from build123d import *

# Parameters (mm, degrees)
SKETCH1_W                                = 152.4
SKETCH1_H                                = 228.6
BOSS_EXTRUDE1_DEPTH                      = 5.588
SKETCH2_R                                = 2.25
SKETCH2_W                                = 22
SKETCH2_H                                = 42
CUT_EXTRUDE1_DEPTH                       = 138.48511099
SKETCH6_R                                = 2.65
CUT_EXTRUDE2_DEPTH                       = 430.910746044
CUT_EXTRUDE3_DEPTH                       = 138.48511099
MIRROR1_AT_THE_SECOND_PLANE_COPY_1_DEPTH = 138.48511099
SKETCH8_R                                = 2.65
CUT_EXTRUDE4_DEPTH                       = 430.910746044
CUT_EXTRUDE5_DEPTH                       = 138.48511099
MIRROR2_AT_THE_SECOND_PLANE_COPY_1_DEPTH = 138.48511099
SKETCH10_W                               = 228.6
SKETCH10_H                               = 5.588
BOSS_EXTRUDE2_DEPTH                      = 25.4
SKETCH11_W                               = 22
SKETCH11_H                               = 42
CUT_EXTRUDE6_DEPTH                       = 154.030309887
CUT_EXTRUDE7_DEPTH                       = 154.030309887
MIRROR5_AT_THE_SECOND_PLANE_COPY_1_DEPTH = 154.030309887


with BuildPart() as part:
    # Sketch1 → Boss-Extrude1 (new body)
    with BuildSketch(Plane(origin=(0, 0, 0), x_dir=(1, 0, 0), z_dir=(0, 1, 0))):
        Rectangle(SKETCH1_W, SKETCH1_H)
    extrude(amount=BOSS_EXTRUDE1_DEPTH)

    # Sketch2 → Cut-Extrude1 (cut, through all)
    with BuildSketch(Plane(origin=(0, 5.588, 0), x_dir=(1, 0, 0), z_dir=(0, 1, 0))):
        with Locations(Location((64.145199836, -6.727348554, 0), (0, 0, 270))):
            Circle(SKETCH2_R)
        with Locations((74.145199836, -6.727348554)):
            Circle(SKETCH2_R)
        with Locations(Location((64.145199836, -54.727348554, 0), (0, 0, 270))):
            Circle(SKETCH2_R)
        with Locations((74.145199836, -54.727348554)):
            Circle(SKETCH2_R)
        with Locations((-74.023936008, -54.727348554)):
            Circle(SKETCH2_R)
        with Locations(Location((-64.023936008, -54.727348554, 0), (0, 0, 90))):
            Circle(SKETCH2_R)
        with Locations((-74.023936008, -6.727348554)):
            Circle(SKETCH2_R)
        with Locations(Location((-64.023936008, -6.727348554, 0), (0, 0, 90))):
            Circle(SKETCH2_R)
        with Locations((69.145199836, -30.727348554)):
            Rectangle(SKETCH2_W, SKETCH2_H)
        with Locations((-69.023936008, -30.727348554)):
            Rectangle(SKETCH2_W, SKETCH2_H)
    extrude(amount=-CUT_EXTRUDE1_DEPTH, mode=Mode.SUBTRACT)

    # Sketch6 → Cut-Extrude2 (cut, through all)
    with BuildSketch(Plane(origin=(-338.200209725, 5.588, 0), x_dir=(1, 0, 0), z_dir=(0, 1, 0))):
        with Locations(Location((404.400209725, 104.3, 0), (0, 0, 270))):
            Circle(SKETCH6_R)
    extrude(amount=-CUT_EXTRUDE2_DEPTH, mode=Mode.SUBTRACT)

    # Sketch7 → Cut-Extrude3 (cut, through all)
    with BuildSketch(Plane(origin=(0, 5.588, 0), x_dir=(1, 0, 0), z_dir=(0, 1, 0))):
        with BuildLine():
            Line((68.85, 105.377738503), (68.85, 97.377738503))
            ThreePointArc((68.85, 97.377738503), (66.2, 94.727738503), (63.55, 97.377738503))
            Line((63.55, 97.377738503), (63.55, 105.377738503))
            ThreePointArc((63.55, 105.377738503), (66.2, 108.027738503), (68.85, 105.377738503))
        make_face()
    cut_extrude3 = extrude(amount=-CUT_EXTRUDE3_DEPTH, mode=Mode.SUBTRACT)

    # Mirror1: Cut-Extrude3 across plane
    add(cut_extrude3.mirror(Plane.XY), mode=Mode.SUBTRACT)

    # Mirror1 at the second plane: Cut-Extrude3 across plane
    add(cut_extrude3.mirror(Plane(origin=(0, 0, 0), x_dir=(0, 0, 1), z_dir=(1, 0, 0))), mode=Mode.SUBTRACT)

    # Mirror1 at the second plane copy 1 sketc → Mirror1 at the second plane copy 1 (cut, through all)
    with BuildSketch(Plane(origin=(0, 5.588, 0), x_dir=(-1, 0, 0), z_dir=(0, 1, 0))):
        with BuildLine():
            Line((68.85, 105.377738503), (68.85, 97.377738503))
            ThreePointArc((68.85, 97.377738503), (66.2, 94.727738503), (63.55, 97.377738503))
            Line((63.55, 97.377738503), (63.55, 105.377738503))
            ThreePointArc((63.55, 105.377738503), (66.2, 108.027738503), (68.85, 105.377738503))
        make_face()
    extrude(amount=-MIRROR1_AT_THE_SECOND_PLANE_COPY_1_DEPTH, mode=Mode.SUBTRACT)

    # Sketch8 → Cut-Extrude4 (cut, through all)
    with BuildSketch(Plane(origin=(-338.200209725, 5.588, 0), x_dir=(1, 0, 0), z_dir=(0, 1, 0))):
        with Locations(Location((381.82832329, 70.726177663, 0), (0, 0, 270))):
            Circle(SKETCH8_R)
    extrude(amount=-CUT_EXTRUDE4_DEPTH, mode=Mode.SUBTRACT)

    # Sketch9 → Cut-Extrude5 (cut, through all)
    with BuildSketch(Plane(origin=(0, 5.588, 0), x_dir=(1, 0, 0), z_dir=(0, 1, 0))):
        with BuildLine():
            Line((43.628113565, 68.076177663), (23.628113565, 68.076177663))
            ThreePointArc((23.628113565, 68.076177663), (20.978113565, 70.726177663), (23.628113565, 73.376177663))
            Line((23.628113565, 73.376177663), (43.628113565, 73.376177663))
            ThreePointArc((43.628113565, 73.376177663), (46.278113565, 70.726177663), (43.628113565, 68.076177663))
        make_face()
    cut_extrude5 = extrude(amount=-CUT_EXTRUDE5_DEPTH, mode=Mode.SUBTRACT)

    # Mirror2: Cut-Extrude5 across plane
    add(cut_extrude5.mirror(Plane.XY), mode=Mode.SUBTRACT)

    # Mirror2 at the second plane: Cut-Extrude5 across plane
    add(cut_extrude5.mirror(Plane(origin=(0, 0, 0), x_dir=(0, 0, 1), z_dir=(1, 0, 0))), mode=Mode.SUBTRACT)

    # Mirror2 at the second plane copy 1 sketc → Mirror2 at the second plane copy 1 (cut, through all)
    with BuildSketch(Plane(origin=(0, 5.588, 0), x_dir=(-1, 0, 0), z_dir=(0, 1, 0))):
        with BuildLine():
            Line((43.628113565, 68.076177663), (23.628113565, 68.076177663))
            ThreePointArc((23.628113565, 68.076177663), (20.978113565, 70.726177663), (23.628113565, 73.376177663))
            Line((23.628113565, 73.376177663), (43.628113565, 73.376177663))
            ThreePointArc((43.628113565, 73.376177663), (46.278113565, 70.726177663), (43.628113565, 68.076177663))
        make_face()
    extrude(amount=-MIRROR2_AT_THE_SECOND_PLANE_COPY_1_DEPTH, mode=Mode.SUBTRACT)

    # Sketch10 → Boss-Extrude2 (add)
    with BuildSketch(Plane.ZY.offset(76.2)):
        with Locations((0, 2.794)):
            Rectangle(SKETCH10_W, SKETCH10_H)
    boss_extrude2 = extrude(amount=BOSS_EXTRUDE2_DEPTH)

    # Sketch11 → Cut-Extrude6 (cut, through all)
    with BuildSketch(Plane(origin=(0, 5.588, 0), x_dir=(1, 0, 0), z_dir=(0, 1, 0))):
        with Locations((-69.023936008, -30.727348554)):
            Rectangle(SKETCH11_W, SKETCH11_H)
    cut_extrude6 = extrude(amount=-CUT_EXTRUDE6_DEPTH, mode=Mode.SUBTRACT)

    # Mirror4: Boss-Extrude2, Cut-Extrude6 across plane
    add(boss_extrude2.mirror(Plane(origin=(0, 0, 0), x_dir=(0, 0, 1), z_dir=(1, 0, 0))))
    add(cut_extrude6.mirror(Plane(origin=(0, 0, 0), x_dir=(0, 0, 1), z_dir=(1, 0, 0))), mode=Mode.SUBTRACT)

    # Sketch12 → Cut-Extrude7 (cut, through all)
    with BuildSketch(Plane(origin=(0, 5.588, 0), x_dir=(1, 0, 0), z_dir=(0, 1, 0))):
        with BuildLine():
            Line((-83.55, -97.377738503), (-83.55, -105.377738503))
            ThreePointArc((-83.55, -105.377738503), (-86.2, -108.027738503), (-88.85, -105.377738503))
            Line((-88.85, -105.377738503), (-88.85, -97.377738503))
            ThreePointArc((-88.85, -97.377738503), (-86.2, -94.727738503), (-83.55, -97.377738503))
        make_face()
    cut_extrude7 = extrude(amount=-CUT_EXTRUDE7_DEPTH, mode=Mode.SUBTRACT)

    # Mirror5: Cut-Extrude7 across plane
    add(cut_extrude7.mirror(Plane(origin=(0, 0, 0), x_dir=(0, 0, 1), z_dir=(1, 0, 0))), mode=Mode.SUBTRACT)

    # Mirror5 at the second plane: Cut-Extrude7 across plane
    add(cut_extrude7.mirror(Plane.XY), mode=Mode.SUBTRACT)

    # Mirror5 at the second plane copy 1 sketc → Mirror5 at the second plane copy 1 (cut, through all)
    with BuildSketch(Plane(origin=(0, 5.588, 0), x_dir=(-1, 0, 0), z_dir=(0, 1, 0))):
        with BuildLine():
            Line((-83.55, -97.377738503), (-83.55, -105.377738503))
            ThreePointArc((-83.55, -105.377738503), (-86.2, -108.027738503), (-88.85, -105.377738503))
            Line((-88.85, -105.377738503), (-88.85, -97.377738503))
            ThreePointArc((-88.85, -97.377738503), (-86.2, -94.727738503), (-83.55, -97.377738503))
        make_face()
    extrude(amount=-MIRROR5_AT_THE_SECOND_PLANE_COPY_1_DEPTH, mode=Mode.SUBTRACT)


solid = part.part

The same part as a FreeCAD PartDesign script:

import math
import FreeCAD as App
import Part
import Sketcher

V = App.Vector
Q = App.Units.Quantity


def add_polygon(sketch, points):
    """Adds a closed chain of lines whose ends are joined by coincident constraints."""
    first, n = sketch.GeometryCount, len(points)
    for a, b in zip(points, points[1:] + points[:1]):
        sketch.addGeometry(Part.LineSegment(App.Vector(*a, 0), App.Vector(*b, 0)), False)
    for i in range(n):
        sketch.addConstraint(Sketcher.Constraint("Coincident", first + i, 2, first + (i + 1) % n, 1))

doc = App.newDocument("Part")
params = doc.addObject("Spreadsheet::Sheet", "Params")
for row, (alias, value) in enumerate([
    ("sketch1_width", "152.4 mm"),
    ("sketch1_height", "228.6 mm"),
    ("pad1_length", "5.588 mm"),
    ("sketch2_diameter", "4.5 mm"),
    ("sketch2_width", "22 mm"),
    ("sketch2_height", "42 mm"),
    ("sketch3_diameter", "5.3 mm"),
    ("sketch4_height", "8 mm"),
    ("sketch4_radius", "2.65 mm"),
    ("sketch5_height", "8 mm"),
    ("sketch5_radius", "2.65 mm"),
    ("sketch6_diameter", "5.3 mm"),
    ("sketch7_width", "20 mm"),
    ("sketch7_radius", "2.65 mm"),
    ("sketch8_width", "20 mm"),
    ("sketch8_radius", "2.65 mm"),
    ("sketch9_height", "228.6 mm"),
    ("pad2_length", "25.4 mm"),
    ("sketch10_width", "22 mm"),
    ("sketch10_height", "42 mm"),
    ("sketch11_height", "8 mm"),
    ("sketch11_radius", "2.65 mm"),
    ("sketch12_height", "8 mm"),
    ("sketch12_radius", "2.65 mm"),
], start=1):
    params.set(f"A{row}", alias)
    params.set(f"B{row}", "=" + value)
    params.setAlias(f"B{row}", alias)

body = doc.addObject("PartDesign::Body", "Body")

# Sketch on XZ plane
sketch1 = body.newObject("Sketcher::SketchObject", "Sketch")
sketch1.AttachmentSupport = (doc.getObject("XZ_Plane"), [""])
sketch1.MapMode = "FlatFace"
add_polygon(sketch1, [(-76.2, -114.3), (-76.2, 114.3), (76.2, 114.3), (76.2, -114.3)])  # lines 0-3
sketch1.addConstraint(Sketcher.Constraint("Vertical", 0))
sketch1.addConstraint(Sketcher.Constraint("Horizontal", 1))
sketch1.addConstraint(Sketcher.Constraint("Vertical", 2))
sketch1.addConstraint(Sketcher.Constraint("Horizontal", 3))
sketch1.addConstraint(Sketcher.Constraint("Symmetric", 0, 2, 2, 2, -1, 1))
sketch1.addConstraint(Sketcher.Constraint("DistanceX", 1, 1, 1, 2, Q("152.4 mm")))
sketch1.addConstraint(Sketcher.Constraint("DistanceY", 0, 1, 0, 2, Q("228.6 mm")))
sketch1.setExpression("Constraints[9]", "Params.sketch1_width")
sketch1.setExpression("Constraints[10]", "Params.sketch1_height")
pad1 = body.newObject("PartDesign::Pad", "Pad")
pad1.Profile = sketch1
pad1.setExpression("Length", "Params.pad1_length")
pad1.Reversed = True

# Sketch on XZ plane
sketch2 = body.newObject("Sketcher::SketchObject", "Sketch001")
sketch2.AttachmentSupport = (doc.getObject("XZ_Plane"), [""])
sketch2.MapMode = "FlatFace"
sketch2.AttachmentOffset = App.Placement(V(0, 0, -5.588), App.Rotation())
sketch2.addGeometry(Part.Circle(V(64.1452, 6.727349, 0), V(0, 0, 1), 2.25), False)  # 0
sketch2.addGeometry(Part.Circle(V(74.1452, 6.727349, 0), V(0, 0, 1), 2.25), False)  # 1
sketch2.addGeometry(Part.Circle(V(64.1452, 54.727349, 0), V(0, 0, 1), 2.25), False)  # 2
sketch2.addGeometry(Part.Circle(V(74.1452, 54.727349, 0), V(0, 0, 1), 2.25), False)  # 3
sketch2.addGeometry(Part.Circle(V(-74.023936, 54.727349, 0), V(0, 0, 1), 2.25), False)  # 4
sketch2.addGeometry(Part.Circle(V(-64.023936, 54.727349, 0), V(0, 0, 1), 2.25), False)  # 5
sketch2.addGeometry(Part.Circle(V(-74.023936, 6.727349, 0), V(0, 0, 1), 2.25), False)  # 6
sketch2.addGeometry(Part.Circle(V(-64.023936, 6.727349, 0), V(0, 0, 1), 2.25), False)  # 7
add_polygon(sketch2, [(58.1452, 9.727349), (58.1452, 51.727349), (80.1452, 51.727349), (80.1452, 9.727349)])  # lines 8-11
add_polygon(sketch2, [(-80.023936, 9.727349), (-80.023936, 51.727349), (-58.023936, 51.727349), (-58.023936, 9.727349)])  # lines 12-15
sketch2.addConstraint(Sketcher.Constraint("Vertical", 8))
sketch2.addConstraint(Sketcher.Constraint("Horizontal", 9))
sketch2.addConstraint(Sketcher.Constraint("Vertical", 10))
sketch2.addConstraint(Sketcher.Constraint("Horizontal", 11))
sketch2.addConstraint(Sketcher.Constraint("Vertical", 12))
sketch2.addConstraint(Sketcher.Constraint("Horizontal", 13))
sketch2.addConstraint(Sketcher.Constraint("Vertical", 14))
sketch2.addConstraint(Sketcher.Constraint("Horizontal", 15))
sketch2.addConstraint(Sketcher.Constraint("Equal", 0, 1))
sketch2.addConstraint(Sketcher.Constraint("Equal", 1, 2))
sketch2.addConstraint(Sketcher.Constraint("Equal", 2, 3))
sketch2.addConstraint(Sketcher.Constraint("Equal", 3, 4))
sketch2.addConstraint(Sketcher.Constraint("Equal", 4, 5))
sketch2.addConstraint(Sketcher.Constraint("Equal", 5, 6))
sketch2.addConstraint(Sketcher.Constraint("Equal", 6, 7))
sketch2.addConstraint(Sketcher.Constraint("Horizontal", 0, 3, 1, 3))
sketch2.addConstraint(Sketcher.Constraint("Horizontal", 2, 3, 3, 3))
sketch2.addConstraint(Sketcher.Constraint("Horizontal", 3, 3, 4, 3))
sketch2.addConstraint(Sketcher.Constraint("Horizontal", 4, 3, 5, 3))
sketch2.addConstraint(Sketcher.Constraint("Horizontal", 1, 3, 6, 3))
sketch2.addConstraint(Sketcher.Constraint("Horizontal", 6, 3, 7, 3))
sketch2.addConstraint(Sketcher.Constraint("Horizontal", 9, 2, 12, 2))
sketch2.addConstraint(Sketcher.Constraint("Horizontal", 11, 2, 14, 2))
sketch2.addConstraint(Sketcher.Constraint("Vertical", 0, 3, 2, 3))
sketch2.addConstraint(Sketcher.Constraint("Vertical", 1, 3, 3, 3))
sketch2.addConstraint(Sketcher.Constraint("Vertical", 4, 3, 6, 3))
sketch2.addConstraint(Sketcher.Constraint("Vertical", 5, 3, 7, 3))
sketch2.addConstraint(Sketcher.Constraint("Equal", 11, 13))
sketch2.addConstraint(Sketcher.Constraint("Diameter", 0, Q("4.5 mm")))
sketch2.addConstraint(Sketcher.Constraint("DistanceX", 9, 1, 9, 2, Q("22 mm")))
sketch2.addConstraint(Sketcher.Constraint("DistanceY", 8, 1, 8, 2, Q("42 mm")))
sketch2.addConstraint(Sketcher.Constraint("DistanceX", 0, 3, 1, 3, Q("10 mm")))
sketch2.addConstraint(Sketcher.Constraint("DistanceY", 0, 3, 2, 3, Q("48 mm")))
sketch2.addConstraint(Sketcher.Constraint("DistanceX", 4, 3, 5, 3, Q("10 mm")))
sketch2.addConstraint(Sketcher.Constraint("DistanceX", 8, 2, 2, 3, Q("6 mm")))
sketch2.addConstraint(Sketcher.Constraint("DistanceY", 8, 2, 2, 3, Q("3 mm")))
sketch2.addConstraint(Sketcher.Constraint("DistanceX", 12, 2, 4, 3, Q("6 mm")))
sketch2.addConstraint(Sketcher.Constraint("DistanceX", -1, 1, 0, 3, Q("64.1452 mm")))
sketch2.addConstraint(Sketcher.Constraint("DistanceY", -1, 1, 0, 3, Q("6.727349 mm")))
sketch2.addConstraint(Sketcher.Constraint("DistanceX", 4, 3, -1, 1, Q("74.023936 mm")))
sketch2.setExpression("Constraints[36]", "Params.sketch2_diameter")
sketch2.setExpression("Constraints[37]", "Params.sketch2_width")
sketch2.setExpression("Constraints[38]", "Params.sketch2_height")
pocket1 = body.newObject("PartDesign::Pocket", "Pocket")
pocket1.Profile = sketch2
pocket1.Type = "ThroughAll"
pocket1.Reversed = True

# Sketch on XZ plane
sketch3 = body.newObject("Sketcher::SketchObject", "Sketch002")
sketch3.AttachmentSupport = (doc.getObject("XZ_Plane"), [""])
sketch3.MapMode = "FlatFace"
sketch3.AttachmentOffset = App.Placement(V(0, 0, -5.588), App.Rotation())
sketch3.addGeometry(Part.Circle(V(66.2, -104.3, 0), V(0, 0, 1), 2.65), False)
sketch3.addConstraint(Sketcher.Constraint("Diameter", 0, Q("5.3 mm")))
sketch3.addConstraint(Sketcher.Constraint("DistanceX", -1, 1, 0, 3, Q("66.2 mm")))
sketch3.addConstraint(Sketcher.Constraint("DistanceY", 0, 3, -1, 1, Q("104.3 mm")))
sketch3.setExpression("Constraints[0]", "Params.sketch3_diameter")
pocket2 = body.newObject("PartDesign::Pocket", "Pocket001")
pocket2.Profile = sketch3
pocket2.Type = "ThroughAll"
pocket2.Reversed = True

# Sketch on XZ plane
sketch4 = body.newObject("Sketcher::SketchObject", "Sketch003")
sketch4.AttachmentSupport = (doc.getObject("XZ_Plane"), [""])
sketch4.MapMode = "FlatFace"
sketch4.AttachmentOffset = App.Placement(V(0, 0, -5.588), App.Rotation())
sketch4.addGeometry(Part.LineSegment(V(68.85, -97.377739, 0), V(68.85, -105.377739, 0)), False)
sketch4.addGeometry(Part.ArcOfCircle(Part.Circle(V(66.2, -105.377739, 0), V(0, 0, 1), 2.65), math.radians(180), math.radians(360)), False)
sketch4.addGeometry(Part.LineSegment(V(63.55, -105.377739, 0), V(63.55, -97.377739, 0)), False)
sketch4.addGeometry(Part.ArcOfCircle(Part.Circle(V(66.2, -97.377739, 0), V(0, 0, 1), 2.65), math.radians(0), math.radians(180)), False)
sketch4.addConstraint(Sketcher.Constraint("Tangent", 0, 2, 1, 2))
sketch4.addConstraint(Sketcher.Constraint("Tangent", 1, 1, 2, 1))
sketch4.addConstraint(Sketcher.Constraint("Tangent", 2, 2, 3, 2))
sketch4.addConstraint(Sketcher.Constraint("Tangent", 3, 1, 0, 1))
sketch4.addConstraint(Sketcher.Constraint("Vertical", 0))
sketch4.addConstraint(Sketcher.Constraint("Vertical", 2))
sketch4.addConstraint(Sketcher.Constraint("DistanceY", 0, 2, 0, 1, Q("8 mm")))
sketch4.addConstraint(Sketcher.Constraint("Radius", 1, Q("2.65 mm")))
sketch4.addConstraint(Sketcher.Constraint("DistanceX", -1, 1, 1, 3, Q("66.2 mm")))
sketch4.addConstraint(Sketcher.Constraint("DistanceY", 1, 3, -1, 1, Q("105.377739 mm")))
sketch4.setExpression("Constraints[6]", "Params.sketch4_height")
sketch4.setExpression("Constraints[7]", "Params.sketch4_radius")
pocket3 = body.newObject("PartDesign::Pocket", "Pocket002")
pocket3.Profile = sketch4
pocket3.Type = "ThroughAll"
pocket3.Reversed = True
doc.recompute()

mirrored = body.newObject("PartDesign::Mirrored", "Mirrored")
mirrored.Originals = [pocket3]
mirrored.MirrorPlane = (doc.getObject("XY_Plane"), [""])
body.Tip = mirrored
doc.recompute()

mirrored2 = body.newObject("PartDesign::Mirrored", "Mirrored001")
mirrored2.Originals = [pocket3]
mirrored2.MirrorPlane = (doc.getObject("YZ_Plane"), [""])
body.Tip = mirrored2

# Sketch on XZ plane
sketch5 = body.newObject("Sketcher::SketchObject", "Sketch004")
sketch5.AttachmentSupport = (doc.getObject("XZ_Plane"), [""])
sketch5.MapMode = "FlatFace"
sketch5.AttachmentOffset = App.Placement(V(0, 0, -5.588), App.Rotation())
sketch5.addGeometry(Part.LineSegment(V(-68.85, 97.377739, 0), V(-68.85, 105.377739, 0)), False)
sketch5.addGeometry(Part.ArcOfCircle(Part.Circle(V(-66.2, 105.377739, 0), V(0, 0, 1), 2.65), math.radians(0), math.radians(180)), False)
sketch5.addGeometry(Part.LineSegment(V(-63.55, 105.377739, 0), V(-63.55, 97.377739, 0)), False)
sketch5.addGeometry(Part.ArcOfCircle(Part.Circle(V(-66.2, 97.377739, 0), V(0, 0, 1), 2.65), math.radians(180), math.radians(360)), False)
sketch5.addConstraint(Sketcher.Constraint("Tangent", 0, 2, 1, 2))
sketch5.addConstraint(Sketcher.Constraint("Tangent", 1, 1, 2, 1))
sketch5.addConstraint(Sketcher.Constraint("Tangent", 2, 2, 3, 2))
sketch5.addConstraint(Sketcher.Constraint("Tangent", 3, 1, 0, 1))
sketch5.addConstraint(Sketcher.Constraint("Vertical", 0))
sketch5.addConstraint(Sketcher.Constraint("Vertical", 2))
sketch5.addConstraint(Sketcher.Constraint("DistanceY", 0, 1, 0, 2, Q("8 mm")))
sketch5.addConstraint(Sketcher.Constraint("Radius", 1, Q("2.65 mm")))
sketch5.addConstraint(Sketcher.Constraint("DistanceX", 1, 3, -1, 1, Q("66.2 mm")))
sketch5.addConstraint(Sketcher.Constraint("DistanceY", -1, 1, 1, 3, Q("105.377739 mm")))
sketch5.setExpression("Constraints[6]", "Params.sketch5_height")
sketch5.setExpression("Constraints[7]", "Params.sketch5_radius")
pocket4 = body.newObject("PartDesign::Pocket", "Pocket003")
pocket4.Profile = sketch5
pocket4.Type = "ThroughAll"
pocket4.Reversed = True

# Sketch on XZ plane
sketch6 = body.newObject("Sketcher::SketchObject", "Sketch005")
sketch6.AttachmentSupport = (doc.getObject("XZ_Plane"), [""])
sketch6.MapMode = "FlatFace"
sketch6.AttachmentOffset = App.Placement(V(0, 0, -5.588), App.Rotation())
sketch6.addGeometry(Part.Circle(V(43.628114, -70.726178, 0), V(0, 0, 1), 2.65), False)
sketch6.addConstraint(Sketcher.Constraint("Diameter", 0, Q("5.3 mm")))
sketch6.addConstraint(Sketcher.Constraint("DistanceX", -1, 1, 0, 3, Q("43.628114 mm")))
sketch6.addConstraint(Sketcher.Constraint("DistanceY", 0, 3, -1, 1, Q("70.726178 mm")))
sketch6.setExpression("Constraints[0]", "Params.sketch6_diameter")
pocket5 = body.newObject("PartDesign::Pocket", "Pocket004")
pocket5.Profile = sketch6
pocket5.Type = "ThroughAll"
pocket5.Reversed = True

# Sketch on XZ plane
sketch7 = body.newObject("Sketcher::SketchObject", "Sketch006")
sketch7.AttachmentSupport = (doc.getObject("XZ_Plane"), [""])
sketch7.MapMode = "FlatFace"
sketch7.AttachmentOffset = App.Placement(V(0, 0, -5.588), App.Rotation())
sketch7.addGeometry(Part.LineSegment(V(23.628114, -68.076178, 0), V(43.628114, -68.076178, 0)), False)
sketch7.addGeometry(Part.ArcOfCircle(Part.Circle(V(43.628114, -70.726178, 0), V(0, 0, 1), 2.65), math.radians(-90), math.radians(90)), False)
sketch7.addGeometry(Part.LineSegment(V(43.628114, -73.376178, 0), V(23.628114, -73.376178, 0)), False)
sketch7.addGeometry(Part.ArcOfCircle(Part.Circle(V(23.628114, -70.726178, 0), V(0, 0, 1), 2.65), math.radians(90), math.radians(270)), False)
sketch7.addConstraint(Sketcher.Constraint("Tangent", 0, 2, 1, 2))
sketch7.addConstraint(Sketcher.Constraint("Tangent", 1, 1, 2, 1))
sketch7.addConstraint(Sketcher.Constraint("Tangent", 2, 2, 3, 2))
sketch7.addConstraint(Sketcher.Constraint("Tangent", 3, 1, 0, 1))
sketch7.addConstraint(Sketcher.Constraint("Horizontal", 0))
sketch7.addConstraint(Sketcher.Constraint("Horizontal", 2))
sketch7.addConstraint(Sketcher.Constraint("DistanceX", 0, 1, 0, 2, Q("20 mm")))
sketch7.addConstraint(Sketcher.Constraint("Radius", 1, Q("2.65 mm")))
sketch7.addConstraint(Sketcher.Constraint("DistanceX", -1, 1, 1, 3, Q("43.628114 mm")))
sketch7.addConstraint(Sketcher.Constraint("DistanceY", 1, 3, -1, 1, Q("70.726178 mm")))
sketch7.setExpression("Constraints[6]", "Params.sketch7_width")
sketch7.setExpression("Constraints[7]", "Params.sketch7_radius")
pocket6 = body.newObject("PartDesign::Pocket", "Pocket005")
pocket6.Profile = sketch7
pocket6.Type = "ThroughAll"
pocket6.Reversed = True
doc.recompute()

mirrored3 = body.newObject("PartDesign::Mirrored", "Mirrored002")
mirrored3.Originals = [pocket6]
mirrored3.MirrorPlane = (doc.getObject("XY_Plane"), [""])
body.Tip = mirrored3
doc.recompute()

mirrored4 = body.newObject("PartDesign::Mirrored", "Mirrored003")
mirrored4.Originals = [pocket6]
mirrored4.MirrorPlane = (doc.getObject("YZ_Plane"), [""])
body.Tip = mirrored4

# Sketch on XZ plane
sketch8 = body.newObject("Sketcher::SketchObject", "Sketch007")
sketch8.AttachmentSupport = (doc.getObject("XZ_Plane"), [""])
sketch8.MapMode = "FlatFace"
sketch8.AttachmentOffset = App.Placement(V(0, 0, -5.588), App.Rotation())
sketch8.addGeometry(Part.LineSegment(V(-23.628114, 68.076178, 0), V(-43.628114, 68.076178, 0)), False)
sketch8.addGeometry(Part.ArcOfCircle(Part.Circle(V(-43.628114, 70.726178, 0), V(0, 0, 1), 2.65), math.radians(90), math.radians(270)), False)
sketch8.addGeometry(Part.LineSegment(V(-43.628114, 73.376178, 0), V(-23.628114, 73.376178, 0)), False)
sketch8.addGeometry(Part.ArcOfCircle(Part.Circle(V(-23.628114, 70.726178, 0), V(0, 0, 1), 2.65), math.radians(-90), math.radians(90)), False)
sketch8.addConstraint(Sketcher.Constraint("Tangent", 0, 2, 1, 2))
sketch8.addConstraint(Sketcher.Constraint("Tangent", 1, 1, 2, 1))
sketch8.addConstraint(Sketcher.Constraint("Tangent", 2, 2, 3, 2))
sketch8.addConstraint(Sketcher.Constraint("Tangent", 3, 1, 0, 1))
sketch8.addConstraint(Sketcher.Constraint("Horizontal", 0))
sketch8.addConstraint(Sketcher.Constraint("Horizontal", 2))
sketch8.addConstraint(Sketcher.Constraint("DistanceX", 0, 2, 0, 1, Q("20 mm")))
sketch8.addConstraint(Sketcher.Constraint("Radius", 1, Q("2.65 mm")))
sketch8.addConstraint(Sketcher.Constraint("DistanceX", 1, 3, -1, 1, Q("43.628114 mm")))
sketch8.addConstraint(Sketcher.Constraint("DistanceY", -1, 1, 1, 3, Q("70.726178 mm")))
sketch8.setExpression("Constraints[6]", "Params.sketch8_width")
sketch8.setExpression("Constraints[7]", "Params.sketch8_radius")
pocket7 = body.newObject("PartDesign::Pocket", "Pocket006")
pocket7.Profile = sketch8
pocket7.Type = "ThroughAll"
pocket7.Reversed = True

# Sketch on YZ plane
sketch9 = body.newObject("Sketcher::SketchObject", "Sketch008")
sketch9.AttachmentSupport = (doc.getObject("YZ_Plane"), [""])
sketch9.MapMode = "FlatFace"
sketch9.AttachmentOffset = App.Placement(V(0, 0, -76.2), App.Rotation())
add_polygon(sketch9, [(5.588, -114.3), (0, -114.3), (0, 114.3), (5.588, 114.3)])  # lines 0-3
sketch9.addConstraint(Sketcher.Constraint("Horizontal", 0))
sketch9.addConstraint(Sketcher.Constraint("Vertical", 1))
sketch9.addConstraint(Sketcher.Constraint("Horizontal", 2))
sketch9.addConstraint(Sketcher.Constraint("Vertical", 3))
sketch9.addConstraint(Sketcher.Constraint("Symmetric", 0, 2, 1, 2, -1, 1))
sketch9.addConstraint(Sketcher.Constraint("DistanceY", 1, 1, 1, 2, Q("228.6 mm")))
sketch9.addConstraint(Sketcher.Constraint("DistanceX", 0, 2, 0, 1, Q("5.588 mm")))
sketch9.setExpression("Constraints[9]", "Params.sketch9_height")
pad2 = body.newObject("PartDesign::Pad", "Pad001")
pad2.Profile = sketch9
pad2.setExpression("Length", "Params.pad2_length")
pad2.Reversed = True

# Sketch on XZ plane
sketch10 = body.newObject("Sketcher::SketchObject", "Sketch009")
sketch10.AttachmentSupport = (doc.getObject("XZ_Plane"), [""])
sketch10.MapMode = "FlatFace"
sketch10.AttachmentOffset = App.Placement(V(0, 0, -5.588), App.Rotation())
add_polygon(sketch10, [(-80.023936, 9.727349), (-80.023936, 51.727349), (-58.023936, 51.727349), (-58.023936, 9.727349)])  # lines 0-3
sketch10.addConstraint(Sketcher.Constraint("Vertical", 0))
sketch10.addConstraint(Sketcher.Constraint("Horizontal", 1))
sketch10.addConstraint(Sketcher.Constraint("Vertical", 2))
sketch10.addConstraint(Sketcher.Constraint("Horizontal", 3))
sketch10.addConstraint(Sketcher.Constraint("DistanceX", 1, 1, 1, 2, Q("22 mm")))
sketch10.addConstraint(Sketcher.Constraint("DistanceY", 0, 1, 0, 2, Q("42 mm")))
sketch10.addConstraint(Sketcher.Constraint("DistanceY", -1, 1, 0, 2, Q("51.727349 mm")))
sketch10.addConstraint(Sketcher.Constraint("DistanceX", 0, 2, -1, 1, Q("80.023936 mm")))
sketch10.setExpression("Constraints[8]", "Params.sketch10_width")
sketch10.setExpression("Constraints[9]", "Params.sketch10_height")
pocket8 = body.newObject("PartDesign::Pocket", "Pocket007")
pocket8.Profile = sketch10
pocket8.Type = "ThroughAll"
pocket8.Reversed = True
doc.recompute()

mirrored5 = body.newObject("PartDesign::Mirrored", "Mirrored004")
mirrored5.Originals = [pad2, pocket8]
mirrored5.MirrorPlane = (doc.getObject("YZ_Plane"), [""])
body.Tip = mirrored5

# Sketch on XZ plane
sketch11 = body.newObject("Sketcher::SketchObject", "Sketch010")
sketch11.AttachmentSupport = (doc.getObject("XZ_Plane"), [""])
sketch11.MapMode = "FlatFace"
sketch11.AttachmentOffset = App.Placement(V(0, 0, -5.588), App.Rotation())
sketch11.addGeometry(Part.LineSegment(V(-83.55, 105.377739, 0), V(-83.55, 97.377739, 0)), False)
sketch11.addGeometry(Part.ArcOfCircle(Part.Circle(V(-86.2, 97.377739, 0), V(0, 0, 1), 2.65), math.radians(180), math.radians(360)), False)
sketch11.addGeometry(Part.LineSegment(V(-88.85, 97.377739, 0), V(-88.85, 105.377739, 0)), False)
sketch11.addGeometry(Part.ArcOfCircle(Part.Circle(V(-86.2, 105.377739, 0), V(0, 0, 1), 2.65), math.radians(0), math.radians(180)), False)
sketch11.addConstraint(Sketcher.Constraint("Tangent", 0, 2, 1, 2))
sketch11.addConstraint(Sketcher.Constraint("Tangent", 1, 1, 2, 1))
sketch11.addConstraint(Sketcher.Constraint("Tangent", 2, 2, 3, 2))
sketch11.addConstraint(Sketcher.Constraint("Tangent", 3, 1, 0, 1))
sketch11.addConstraint(Sketcher.Constraint("Vertical", 0))
sketch11.addConstraint(Sketcher.Constraint("Vertical", 2))
sketch11.addConstraint(Sketcher.Constraint("DistanceY", 0, 2, 0, 1, Q("8 mm")))
sketch11.addConstraint(Sketcher.Constraint("Radius", 1, Q("2.65 mm")))
sketch11.addConstraint(Sketcher.Constraint("DistanceX", 1, 3, -1, 1, Q("86.2 mm")))
sketch11.addConstraint(Sketcher.Constraint("DistanceY", -1, 1, 1, 3, Q("97.377739 mm")))
sketch11.setExpression("Constraints[6]", "Params.sketch11_height")
sketch11.setExpression("Constraints[7]", "Params.sketch11_radius")
pocket9 = body.newObject("PartDesign::Pocket", "Pocket008")
pocket9.Profile = sketch11
pocket9.Type = "ThroughAll"
pocket9.Reversed = True
doc.recompute()

mirrored6 = body.newObject("PartDesign::Mirrored", "Mirrored005")
mirrored6.Originals = [pocket9]
mirrored6.MirrorPlane = (doc.getObject("YZ_Plane"), [""])
body.Tip = mirrored6
doc.recompute()

mirrored7 = body.newObject("PartDesign::Mirrored", "Mirrored006")
mirrored7.Originals = [pocket9]
mirrored7.MirrorPlane = (doc.getObject("XY_Plane"), [""])
body.Tip = mirrored7

# Sketch on XZ plane
sketch12 = body.newObject("Sketcher::SketchObject", "Sketch011")
sketch12.AttachmentSupport = (doc.getObject("XZ_Plane"), [""])
sketch12.MapMode = "FlatFace"
sketch12.AttachmentOffset = App.Placement(V(0, 0, -5.588), App.Rotation())
sketch12.addGeometry(Part.LineSegment(V(83.55, -105.377739, 0), V(83.55, -97.377739, 0)), False)
sketch12.addGeometry(Part.ArcOfCircle(Part.Circle(V(86.2, -97.377739, 0), V(0, 0, 1), 2.65), math.radians(0), math.radians(180)), False)
sketch12.addGeometry(Part.LineSegment(V(88.85, -97.377739, 0), V(88.85, -105.377739, 0)), False)
sketch12.addGeometry(Part.ArcOfCircle(Part.Circle(V(86.2, -105.377739, 0), V(0, 0, 1), 2.65), math.radians(180), math.radians(360)), False)
sketch12.addConstraint(Sketcher.Constraint("Tangent", 0, 2, 1, 2))
sketch12.addConstraint(Sketcher.Constraint("Tangent", 1, 1, 2, 1))
sketch12.addConstraint(Sketcher.Constraint("Tangent", 2, 2, 3, 2))
sketch12.addConstraint(Sketcher.Constraint("Tangent", 3, 1, 0, 1))
sketch12.addConstraint(Sketcher.Constraint("Vertical", 0))
sketch12.addConstraint(Sketcher.Constraint("Vertical", 2))
sketch12.addConstraint(Sketcher.Constraint("DistanceY", 0, 1, 0, 2, Q("8 mm")))
sketch12.addConstraint(Sketcher.Constraint("Radius", 1, Q("2.65 mm")))
sketch12.addConstraint(Sketcher.Constraint("DistanceX", -1, 1, 1, 3, Q("86.2 mm")))
sketch12.addConstraint(Sketcher.Constraint("DistanceY", 1, 3, -1, 1, Q("97.377739 mm")))
sketch12.setExpression("Constraints[6]", "Params.sketch12_height")
sketch12.setExpression("Constraints[7]", "Params.sketch12_radius")
pocket10 = body.newObject("PartDesign::Pocket", "Pocket009")
pocket10.Profile = sketch12
pocket10.Type = "ThroughAll"
pocket10.Reversed = True

doc.recompute()
